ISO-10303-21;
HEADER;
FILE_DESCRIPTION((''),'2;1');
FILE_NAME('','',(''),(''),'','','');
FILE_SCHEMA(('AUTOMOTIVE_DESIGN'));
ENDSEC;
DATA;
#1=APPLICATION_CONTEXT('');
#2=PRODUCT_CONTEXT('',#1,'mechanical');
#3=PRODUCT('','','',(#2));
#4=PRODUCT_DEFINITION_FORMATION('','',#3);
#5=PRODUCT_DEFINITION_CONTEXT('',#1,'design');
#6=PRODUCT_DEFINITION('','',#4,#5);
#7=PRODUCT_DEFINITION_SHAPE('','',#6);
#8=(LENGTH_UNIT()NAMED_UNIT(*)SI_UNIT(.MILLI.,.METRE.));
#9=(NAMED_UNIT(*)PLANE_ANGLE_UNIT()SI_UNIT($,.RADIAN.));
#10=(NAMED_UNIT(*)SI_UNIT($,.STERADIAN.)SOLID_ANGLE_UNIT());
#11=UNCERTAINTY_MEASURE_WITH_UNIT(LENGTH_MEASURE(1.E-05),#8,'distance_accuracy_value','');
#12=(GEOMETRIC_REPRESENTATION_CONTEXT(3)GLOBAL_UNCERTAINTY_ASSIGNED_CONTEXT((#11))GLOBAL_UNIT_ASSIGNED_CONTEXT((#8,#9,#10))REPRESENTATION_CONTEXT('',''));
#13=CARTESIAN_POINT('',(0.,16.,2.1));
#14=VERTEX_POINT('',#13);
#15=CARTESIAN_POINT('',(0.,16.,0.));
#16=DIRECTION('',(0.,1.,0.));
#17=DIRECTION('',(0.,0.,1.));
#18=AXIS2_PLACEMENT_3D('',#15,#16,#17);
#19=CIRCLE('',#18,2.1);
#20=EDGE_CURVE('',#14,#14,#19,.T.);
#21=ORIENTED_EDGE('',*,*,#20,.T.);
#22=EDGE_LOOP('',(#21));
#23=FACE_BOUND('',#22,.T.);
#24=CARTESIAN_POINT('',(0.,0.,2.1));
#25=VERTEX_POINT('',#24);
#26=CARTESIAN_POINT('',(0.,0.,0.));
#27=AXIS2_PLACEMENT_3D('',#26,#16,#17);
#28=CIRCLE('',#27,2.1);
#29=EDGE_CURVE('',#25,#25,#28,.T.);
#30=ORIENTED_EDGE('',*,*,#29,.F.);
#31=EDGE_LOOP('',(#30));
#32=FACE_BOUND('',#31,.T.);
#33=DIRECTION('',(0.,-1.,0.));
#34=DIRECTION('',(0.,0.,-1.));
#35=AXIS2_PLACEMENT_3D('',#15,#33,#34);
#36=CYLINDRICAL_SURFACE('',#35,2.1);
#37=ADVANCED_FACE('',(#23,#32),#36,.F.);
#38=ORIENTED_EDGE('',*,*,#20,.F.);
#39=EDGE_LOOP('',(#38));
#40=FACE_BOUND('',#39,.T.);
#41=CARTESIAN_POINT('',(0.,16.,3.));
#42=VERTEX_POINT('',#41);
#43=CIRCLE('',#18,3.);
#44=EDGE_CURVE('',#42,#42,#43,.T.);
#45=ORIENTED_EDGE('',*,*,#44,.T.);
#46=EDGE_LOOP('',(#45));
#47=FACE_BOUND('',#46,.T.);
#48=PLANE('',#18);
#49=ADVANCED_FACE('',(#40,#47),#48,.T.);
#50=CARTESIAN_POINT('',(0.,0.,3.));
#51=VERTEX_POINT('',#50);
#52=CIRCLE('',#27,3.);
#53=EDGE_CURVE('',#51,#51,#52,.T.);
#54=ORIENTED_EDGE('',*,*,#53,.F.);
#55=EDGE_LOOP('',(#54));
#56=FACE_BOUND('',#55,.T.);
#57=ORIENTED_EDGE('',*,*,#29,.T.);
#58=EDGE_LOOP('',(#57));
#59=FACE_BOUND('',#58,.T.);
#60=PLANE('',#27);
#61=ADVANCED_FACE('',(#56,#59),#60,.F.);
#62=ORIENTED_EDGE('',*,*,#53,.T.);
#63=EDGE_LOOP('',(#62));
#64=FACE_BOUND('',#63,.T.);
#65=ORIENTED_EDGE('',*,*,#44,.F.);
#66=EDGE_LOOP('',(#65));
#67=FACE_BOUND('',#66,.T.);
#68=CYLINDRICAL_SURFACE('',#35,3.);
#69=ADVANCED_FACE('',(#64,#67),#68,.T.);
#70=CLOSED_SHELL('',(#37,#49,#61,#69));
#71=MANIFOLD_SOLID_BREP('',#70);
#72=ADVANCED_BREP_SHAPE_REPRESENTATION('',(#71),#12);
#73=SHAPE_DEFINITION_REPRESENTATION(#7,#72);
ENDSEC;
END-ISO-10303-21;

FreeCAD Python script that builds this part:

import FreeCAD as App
import Part
import Sketcher
Q = App.Units.Quantity

doc = App.newDocument("Part")
body = doc.addObject("PartDesign::Body", "Body")

# Sketch on XZ plane
sketch1 = doc.addObject("Sketcher::SketchObject", "Sketch")
body.addObject(sketch1)
sketch1.AttachmentSupport = (doc.XZ_Plane, [""])
sketch1.MapMode = "FlatFace"
sketch1.addGeometry([
    Part.Circle(App.Vector(0, 0, 0), App.Vector(0, 0, 1), 3),
    Part.Circle(App.Vector(0, 0, 0), App.Vector(0, 0, 1), 2.1),
], False)
sketch1.addConstraint([
    Sketcher.Constraint("Coincident", 0, 3, -1, 1),
    Sketcher.Constraint("Coincident", 1, 3, -1, 1),
    Sketcher.Constraint("Diameter", 0, Q("6 mm")),
    Sketcher.Constraint("Diameter", 1, Q("4.2 mm")),
])
pad1 = doc.addObject("PartDesign::Pad", "Pad")
body.addObject(pad1)
pad1.Profile = sketch1
pad1.Length = 16
pad1.Reversed = True

doc.recompute()
